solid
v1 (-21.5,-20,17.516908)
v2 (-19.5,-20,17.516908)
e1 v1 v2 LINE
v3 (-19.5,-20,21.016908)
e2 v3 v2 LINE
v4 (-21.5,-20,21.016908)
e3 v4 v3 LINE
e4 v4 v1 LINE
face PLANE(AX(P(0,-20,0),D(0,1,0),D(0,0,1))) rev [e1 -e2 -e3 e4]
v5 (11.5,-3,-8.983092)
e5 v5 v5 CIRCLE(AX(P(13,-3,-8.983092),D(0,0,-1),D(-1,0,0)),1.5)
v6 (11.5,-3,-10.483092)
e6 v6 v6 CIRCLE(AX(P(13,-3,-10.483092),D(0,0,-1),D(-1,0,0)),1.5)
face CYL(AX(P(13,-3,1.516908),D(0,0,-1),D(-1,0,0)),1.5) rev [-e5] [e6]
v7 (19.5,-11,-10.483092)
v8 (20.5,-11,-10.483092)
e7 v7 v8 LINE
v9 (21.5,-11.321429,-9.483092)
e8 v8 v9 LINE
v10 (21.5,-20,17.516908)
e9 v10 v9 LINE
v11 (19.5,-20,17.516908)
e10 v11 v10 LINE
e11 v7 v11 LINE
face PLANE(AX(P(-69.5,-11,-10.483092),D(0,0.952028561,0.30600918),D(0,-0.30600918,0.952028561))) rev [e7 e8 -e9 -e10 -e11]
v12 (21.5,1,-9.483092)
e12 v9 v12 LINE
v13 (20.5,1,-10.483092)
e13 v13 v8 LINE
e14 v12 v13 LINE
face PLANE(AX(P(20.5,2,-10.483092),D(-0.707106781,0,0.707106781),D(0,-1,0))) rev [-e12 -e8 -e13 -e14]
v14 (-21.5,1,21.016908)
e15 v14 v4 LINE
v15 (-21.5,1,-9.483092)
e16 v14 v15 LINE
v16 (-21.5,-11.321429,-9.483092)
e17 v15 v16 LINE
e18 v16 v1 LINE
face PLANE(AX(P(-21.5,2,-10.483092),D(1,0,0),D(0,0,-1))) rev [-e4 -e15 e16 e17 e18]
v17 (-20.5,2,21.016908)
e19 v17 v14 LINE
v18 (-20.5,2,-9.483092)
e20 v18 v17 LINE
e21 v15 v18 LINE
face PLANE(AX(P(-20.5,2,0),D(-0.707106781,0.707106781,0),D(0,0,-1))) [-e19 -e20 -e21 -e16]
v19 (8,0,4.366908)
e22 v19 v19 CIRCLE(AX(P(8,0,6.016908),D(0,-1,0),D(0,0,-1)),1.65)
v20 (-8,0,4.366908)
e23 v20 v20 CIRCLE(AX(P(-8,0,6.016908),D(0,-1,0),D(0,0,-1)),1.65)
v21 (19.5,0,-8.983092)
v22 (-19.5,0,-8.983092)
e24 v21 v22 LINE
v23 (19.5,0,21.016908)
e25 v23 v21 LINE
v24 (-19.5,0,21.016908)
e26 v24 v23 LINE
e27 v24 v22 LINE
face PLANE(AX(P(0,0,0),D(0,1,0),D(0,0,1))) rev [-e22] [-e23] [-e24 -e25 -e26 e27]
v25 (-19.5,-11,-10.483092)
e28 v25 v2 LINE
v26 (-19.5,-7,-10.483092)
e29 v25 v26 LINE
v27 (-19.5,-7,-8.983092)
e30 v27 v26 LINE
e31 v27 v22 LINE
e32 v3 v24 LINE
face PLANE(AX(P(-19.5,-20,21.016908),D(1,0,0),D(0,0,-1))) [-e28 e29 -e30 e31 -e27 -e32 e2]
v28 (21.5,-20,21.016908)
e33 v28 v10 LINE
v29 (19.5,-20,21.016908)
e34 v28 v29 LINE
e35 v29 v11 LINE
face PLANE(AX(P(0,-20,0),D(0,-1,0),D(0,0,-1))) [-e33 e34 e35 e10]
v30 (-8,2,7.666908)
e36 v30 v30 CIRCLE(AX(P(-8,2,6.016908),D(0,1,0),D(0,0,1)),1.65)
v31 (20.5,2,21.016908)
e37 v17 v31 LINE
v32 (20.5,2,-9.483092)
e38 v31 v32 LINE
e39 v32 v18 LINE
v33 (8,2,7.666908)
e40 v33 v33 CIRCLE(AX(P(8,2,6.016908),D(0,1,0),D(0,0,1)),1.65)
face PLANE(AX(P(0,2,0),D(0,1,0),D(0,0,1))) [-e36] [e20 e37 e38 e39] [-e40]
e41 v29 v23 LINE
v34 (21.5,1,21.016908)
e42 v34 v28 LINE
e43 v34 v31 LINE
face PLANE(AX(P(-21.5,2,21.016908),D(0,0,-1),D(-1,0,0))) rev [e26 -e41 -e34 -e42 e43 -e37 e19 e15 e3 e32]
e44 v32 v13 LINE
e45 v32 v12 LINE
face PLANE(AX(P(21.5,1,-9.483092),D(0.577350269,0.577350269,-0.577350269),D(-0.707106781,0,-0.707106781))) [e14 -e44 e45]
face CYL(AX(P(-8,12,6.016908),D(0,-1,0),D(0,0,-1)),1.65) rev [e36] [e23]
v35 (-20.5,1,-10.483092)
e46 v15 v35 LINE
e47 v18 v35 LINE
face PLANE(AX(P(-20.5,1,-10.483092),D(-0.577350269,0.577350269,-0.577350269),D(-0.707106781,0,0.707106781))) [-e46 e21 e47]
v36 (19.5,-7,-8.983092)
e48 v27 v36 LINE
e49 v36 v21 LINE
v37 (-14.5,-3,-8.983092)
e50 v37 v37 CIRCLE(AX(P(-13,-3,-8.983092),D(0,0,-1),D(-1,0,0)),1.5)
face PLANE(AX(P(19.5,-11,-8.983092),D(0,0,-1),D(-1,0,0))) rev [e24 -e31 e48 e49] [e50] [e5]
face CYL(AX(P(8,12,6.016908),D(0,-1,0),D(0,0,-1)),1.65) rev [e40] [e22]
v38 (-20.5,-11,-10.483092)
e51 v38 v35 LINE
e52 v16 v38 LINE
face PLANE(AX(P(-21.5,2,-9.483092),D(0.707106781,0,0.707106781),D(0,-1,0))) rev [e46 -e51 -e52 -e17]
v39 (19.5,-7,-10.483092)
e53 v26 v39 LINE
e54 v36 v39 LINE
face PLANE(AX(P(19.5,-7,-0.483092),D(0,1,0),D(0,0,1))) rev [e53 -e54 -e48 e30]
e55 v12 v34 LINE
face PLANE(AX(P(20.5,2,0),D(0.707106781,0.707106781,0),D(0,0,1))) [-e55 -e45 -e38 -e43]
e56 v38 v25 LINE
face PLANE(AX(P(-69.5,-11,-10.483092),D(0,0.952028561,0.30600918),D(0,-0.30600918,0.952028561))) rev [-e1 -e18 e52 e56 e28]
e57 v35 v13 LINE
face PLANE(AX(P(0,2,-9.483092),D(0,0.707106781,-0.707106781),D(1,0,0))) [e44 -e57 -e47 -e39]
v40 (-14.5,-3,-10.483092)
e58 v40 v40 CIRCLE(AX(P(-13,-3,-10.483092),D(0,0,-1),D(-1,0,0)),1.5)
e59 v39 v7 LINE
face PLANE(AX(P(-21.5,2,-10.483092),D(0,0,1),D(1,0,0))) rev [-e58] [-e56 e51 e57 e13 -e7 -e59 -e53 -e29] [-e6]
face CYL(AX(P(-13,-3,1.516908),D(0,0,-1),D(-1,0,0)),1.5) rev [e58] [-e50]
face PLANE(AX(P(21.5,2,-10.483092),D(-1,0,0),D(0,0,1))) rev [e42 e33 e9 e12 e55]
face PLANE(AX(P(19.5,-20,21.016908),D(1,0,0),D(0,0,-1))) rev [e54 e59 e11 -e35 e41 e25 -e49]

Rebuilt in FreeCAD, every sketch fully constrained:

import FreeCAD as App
import Part
import Sketcher

V = App.Vector


def edges_at(feature, points):
    """Names of the edges that pass closest to the given points."""
    edges = feature.Shape.Edges
    near = lambda p: min(range(len(edges)), key=lambda i: edges[i].distToShape(Part.Vertex(*p))[0])
    return sorted({f"Edge{near(p) + 1}" for p in points})

doc = App.newDocument("Part")
body = doc.addObject("PartDesign::Body", "Body")

sketch1 = body.newObject("Sketcher::SketchObject", "Sketch")
sketch1.AttachmentSupport = (doc.getObject("XZ_Plane"), [""])
sketch1.MapMode = "FlatFace"
sketch1.addGeometry(Part.LineSegment(V(-22, -10, 0), V(-22, 21, 0)), False)
sketch1.addGeometry(Part.LineSegment(V(-22, 21, 0), V(22, 21, 0)), False)
sketch1.addGeometry(Part.LineSegment(V(22, 21, 0), V(22, -10, 0)), False)
sketch1.addGeometry(Part.LineSegment(V(22, -10, 0), V(-22, -10, 0)), False)
sketch1.addConstraint(Sketcher.Constraint("Coincident", 0, 2, 1, 1))
sketch1.addConstraint(Sketcher.Constraint("Coincident", 1, 2, 2, 1))
sketch1.addConstraint(Sketcher.Constraint("Coincident", 2, 2, 3, 1))
sketch1.addConstraint(Sketcher.Constraint("Coincident", 3, 2, 0, 1))
sketch1.addConstraint(Sketcher.Constraint("Vertical", 0))
sketch1.addConstraint(Sketcher.Constraint("Horizontal", 1))
sketch1.addConstraint(Sketcher.Constraint("Vertical", 2))
sketch1.addConstraint(Sketcher.Constraint("Horizontal", 3))
sketch1.addConstraint(Sketcher.Constraint("DistanceX", 1, 1, 1, 2, 43.0))
sketch1.addConstraint(Sketcher.Constraint("DistanceY", 0, 1, 0, 2, 31.5))
sketch1.addConstraint(Sketcher.Constraint("DistanceX", 0, 2, -1, 1, 21.5))
sketch1.addConstraint(Sketcher.Constraint("DistanceY", -1, 1, 0, 2, 21.016908))
pad1 = body.newObject("PartDesign::Pad", "Pad")
pad1.Profile = sketch1
pad1.Length = 2
pad1.Reversed = True

sketch2 = body.newObject("Sketcher::SketchObject", "Sketch001")
sketch2.AttachmentSupport = (doc.getObject("XZ_Plane"), [""])
sketch2.MapMode = "FlatFace"
sketch2.addGeometry(Part.LineSegment(V(-21.5, 21, 0), V(-21.5, -10.5, 0)), False)
sketch2.addGeometry(Part.LineSegment(V(-21.5, -10.5, 0), V(-19.5, -10.5, 0)), False)
sketch2.addGeometry(Part.LineSegment(V(-19.5, -10.5, 0), V(-19.5, 21, 0)), False)
sketch2.addGeometry(Part.LineSegment(V(-19.5, 21, 0), V(-21.5, 21, 0)), False)
sketch2.addGeometry(Part.LineSegment(V(19.5, 21, 0), V(19.5, -10.5, 0)), False)
sketch2.addGeometry(Part.LineSegment(V(19.5, -10.5, 0), V(21.5, -10.5, 0)), False)
sketch2.addGeometry(Part.LineSegment(V(21.5, -10.5, 0), V(21.5, 21, 0)), False)
sketch2.addGeometry(Part.LineSegment(V(21.5, 21, 0), V(19.5, 21, 0)), False)
sketch2.addConstraint(Sketcher.Constraint("Coincident", 0, 2, 1, 1))
sketch2.addConstraint(Sketcher.Constraint("Coincident", 1, 2, 2, 1))
sketch2.addConstraint(Sketcher.Constraint("Coincident", 2, 2, 3, 1))
sketch2.addConstraint(Sketcher.Constraint("Coincident", 3, 2, 0, 1))
sketch2.addConstraint(Sketcher.Constraint("Coincident", 4, 2, 5, 1))
sketch2.addConstraint(Sketcher.Constraint("Coincident", 5, 2, 6, 1))
sketch2.addConstraint(Sketcher.Constraint("Coincident", 6, 2, 7, 1))
sketch2.addConstraint(Sketcher.Constraint("Coincident", 7, 2, 4, 1))
sketch2.addConstraint(Sketcher.Constraint("Vertical", 0))
sketch2.addConstraint(Sketcher.Constraint("Horizontal", 1))
sketch2.addConstraint(Sketcher.Constraint("Vertical", 2))
sketch2.addConstraint(Sketcher.Constraint("Horizontal", 3))
sketch2.addConstraint(Sketcher.Constraint("Vertical", 4))
sketch2.addConstraint(Sketcher.Constraint("Horizontal", 5))
sketch2.addConstraint(Sketcher.Constraint("Vertical", 6))
sketch2.addConstraint(Sketcher.Constraint("Horizontal", 7))
sketch2.addConstraint(Sketcher.Constraint("Symmetric", 1, 2, 4, 2, -2))
sketch2.addConstraint(Sketcher.Constraint("Symmetric", 3, 2, 6, 2, -2))
sketch2.addConstraint(Sketcher.Constraint("DistanceX", 1, 1, 1, 2, 2.0))
sketch2.addConstraint(Sketcher.Constraint("DistanceY", 0, 2, 0, 1, 31.5))
sketch2.addConstraint(Sketcher.Constraint("DistanceX", 1, 2, 4, 2, 39.0))
sketch2.addConstraint(Sketcher.Constraint("DistanceY", 0, 2, -1, 1, 10.483092))
pad2 = body.newObject("PartDesign::Pad", "Pad001")
pad2.Profile = sketch2
pad2.Length = 20

sketch3 = body.newObject("Sketcher::SketchObject", "Sketch002")
sketch3.AttachmentSupport = (doc.getObject("XZ_Plane"), [""])
sketch3.MapMode = "FlatFace"
sketch3.addGeometry(Part.LineSegment(V(-19.5, -9, 0), V(-19.5, -10.5, 0)), False)
sketch3.addGeometry(Part.LineSegment(V(-19.5, -10.5, 0), V(19.5, -10.5, 0)), False)
sketch3.addGeometry(Part.LineSegment(V(19.5, -10.5, 0), V(19.5, -9, 0)), False)
sketch3.addGeometry(Part.LineSegment(V(19.5, -9, 0), V(-19.5, -9, 0)), False)
sketch3.addConstraint(Sketcher.Constraint("Coincident", 0, 2, 1, 1))
sketch3.addConstraint(Sketcher.Constraint("Coincident", 1, 2, 2, 1))
sketch3.addConstraint(Sketcher.Constraint("Coincident", 2, 2, 3, 1))
sketch3.addConstraint(Sketcher.Constraint("Coincident", 3, 2, 0, 1))
sketch3.addConstraint(Sketcher.Constraint("Vertical", 0))
sketch3.addConstraint(Sketcher.Constraint("Horizontal", 1))
sketch3.addConstraint(Sketcher.Constraint("Vertical", 2))
sketch3.addConstraint(Sketcher.Constraint("Horizontal", 3))
sketch3.addConstraint(Sketcher.Constraint("DistanceX", 1, 1, 1, 2, 39.0))
sketch3.addConstraint(Sketcher.Constraint("DistanceY", 0, 2, 0, 1, 1.5))
sketch3.addConstraint(Sketcher.Constraint("DistanceX", 0, 2, -1, 1, 19.5))
sketch3.addConstraint(Sketcher.Constraint("DistanceY", 0, 2, -1, 1, 10.483092))
pad3 = body.newObject("PartDesign::Pad", "Pad002")
pad3.Profile = sketch3
pad3.Length = 11

sketch4 = body.newObject("Sketcher::SketchObject", "Sketch003")
sketch4.AttachmentSupport = (doc.getObject("XZ_Plane"), [""])
sketch4.MapMode = "FlatFace"
sketch4.addGeometry(Part.Circle(V(8, 6, 0), V(0, 0, 1), 1.6), False)
sketch4.addGeometry(Part.Circle(V(-8, 6, 0), V(0, 0, 1), 1.6), False)
sketch4.addConstraint(Sketcher.Constraint("Equal", 0, 1))
sketch4.addConstraint(Sketcher.Constraint("Symmetric", 0, 3, 1, 3, -2))
sketch4.addConstraint(Sketcher.Constraint("Diameter", 0, 3.3))
sketch4.addConstraint(Sketcher.Constraint("DistanceX", -1, 1, 0, 3, 8.0))
sketch4.addConstraint(Sketcher.Constraint("DistanceY", -1, 1, 0, 3, 6.016908))
pocket1 = body.newObject("PartDesign::Pocket", "Pocket")
pocket1.Profile = sketch4
pocket1.Length = 12

sketch5 = body.newObject("Sketcher::SketchObject", "Sketch004")
sketch5.AttachmentSupport = (doc.getObject("XY_Plane"), [""])
sketch5.MapMode = "FlatFace"
sketch5.AttachmentOffset = App.Placement(V(0, 0, -10.483092), App.Rotation())
sketch5.addGeometry(Part.Circle(V(13, -3, 0), V(0, 0, 1), 1.5), False)
sketch5.addGeometry(Part.Circle(V(-13, -3, 0), V(0, 0, 1), 1.5), False)
sketch5.addConstraint(Sketcher.Constraint("Equal", 0, 1))
sketch5.addConstraint(Sketcher.Constraint("Symmetric", 0, 3, 1, 3, -2))
sketch5.addConstraint(Sketcher.Constraint("Diameter", 0, 3.0))
sketch5.addConstraint(Sketcher.Constraint("DistanceX", -1, 1, 0, 3, 13.0))
sketch5.addConstraint(Sketcher.Constraint("DistanceY", 0, 3, -1, 1, 3.0))
pocket2 = body.newObject("PartDesign::Pocket", "Pocket001")
pocket2.Profile = sketch5
pocket2.Length = 12
pocket2.Reversed = True
doc.recompute()

chamfer = body.newObject("PartDesign::Chamfer", "Chamfer")
chamfer.Base = (pocket2, edges_at(pocket2, [
    (21.5, 2, 5.267),
    (0, 2, -10.483),
    (-21.5, 2, 5.267),
    (-21.5, -9, -10.483),
    (21.5, -9, -10.483),
]))
chamfer.Size = 1

sketch6 = body.newObject("Sketcher::SketchObject", "Sketch005")
sketch6.AttachmentSupport = (doc.getObject("YZ_Plane"), [""])
sketch6.MapMode = "FlatFace"
sketch6.AttachmentOffset = App.Placement(V(0, 0, -19.5), App.Rotation())
sketch6.addGeometry(Part.LineSegment(V(-20, -10, 0), V(-11, -10, 0)), False)
sketch6.addGeometry(Part.LineSegment(V(-11, -10, 0), V(-20, 18, 0)), False)
sketch6.addGeometry(Part.LineSegment(V(-20, 18, 0), V(-20, -10, 0)), False)
sketch6.addConstraint(Sketcher.Constraint("Coincident", 0, 2, 1, 1))
sketch6.addConstraint(Sketcher.Constraint("Coincident", 1, 2, 2, 1))
sketch6.addConstraint(Sketcher.Constraint("Coincident", 2, 2, 0, 1))
sketch6.addConstraint(Sketcher.Constraint("Horizontal", 0))
sketch6.addConstraint(Sketcher.Constraint("Vertical", 2))
sketch6.addConstraint(Sketcher.Constraint("DistanceX", 0, 1, 0, 2, 9.0))
sketch6.addConstraint(Sketcher.Constraint("DistanceY", 2, 2, 2, 1, 28.0))
sketch6.addConstraint(Sketcher.Constraint("DistanceX", 0, 2, -1, 1, 11.0))
sketch6.addConstraint(Sketcher.Constraint("DistanceY", 0, 2, -1, 1, 10.483092))
pocket3 = body.newObject("PartDesign::Pocket", "Pocket002")
pocket3.Profile = sketch6
pocket3.Length = 100
pocket3.Midplane = True

sketch7 = body.newObject("Sketcher::SketchObject", "Sketch006")
sketch7.AttachmentSupport = (doc.getObject("XY_Plane"), [""])
sketch7.MapMode = "FlatFace"
sketch7.AttachmentOffset = App.Placement(V(0, 0, -10.483092), App.Rotation())
sketch7.addGeometry(Part.LineSegment(V(19.5, -7, 0), V(19.5, -11, 0)), False)
sketch7.addGeometry(Part.LineSegment(V(19.5, -11, 0), V(-19.5, -11, 0)), False)
sketch7.addGeometry(Part.LineSegment(V(-19.5, -11, 0), V(-19.5, -7, 0)), False)
sketch7.addGeometry(Part.LineSegment(V(-19.5, -7, 0), V(19.5, -7, 0)), False)
sketch7.addConstraint(Sketcher.Constraint("Coincident", 0, 2, 1, 1))
sketch7.addConstraint(Sketcher.Constraint("Coincident", 1, 2, 2, 1))
sketch7.addConstraint(Sketcher.Constraint("Coincident", 2, 2, 3, 1))
sketch7.addConstraint(Sketcher.Constraint("Coincident", 3, 2, 0, 1))
sketch7.addConstraint(Sketcher.Constraint("Vertical", 0))
sketch7.addConstraint(Sketcher.Constraint("Horizontal", 1))
sketch7.addConstraint(Sketcher.Constraint("Vertical", 2))
sketch7.addConstraint(Sketcher.Constraint("Horizontal", 3))
sketch7.addConstraint(Sketcher.Constraint("DistanceX", 1, 2, 1, 1, 39.0))
sketch7.addConstraint(Sketcher.Constraint("DistanceY", 0, 2, 0, 1, 4.0))
sketch7.addConstraint(Sketcher.Constraint("DistanceY", 0, 2, -1, 1, 11.0))
sketch7.addConstraint(Sketcher.Constraint("DistanceX", -1, 1, 0, 2, 19.5))
pocket4 = body.newObject("PartDesign::Pocket", "Pocket003")
pocket4.Profile = sketch7
pocket4.Length = 10
pocket4.Reversed = True

doc.recompute()
